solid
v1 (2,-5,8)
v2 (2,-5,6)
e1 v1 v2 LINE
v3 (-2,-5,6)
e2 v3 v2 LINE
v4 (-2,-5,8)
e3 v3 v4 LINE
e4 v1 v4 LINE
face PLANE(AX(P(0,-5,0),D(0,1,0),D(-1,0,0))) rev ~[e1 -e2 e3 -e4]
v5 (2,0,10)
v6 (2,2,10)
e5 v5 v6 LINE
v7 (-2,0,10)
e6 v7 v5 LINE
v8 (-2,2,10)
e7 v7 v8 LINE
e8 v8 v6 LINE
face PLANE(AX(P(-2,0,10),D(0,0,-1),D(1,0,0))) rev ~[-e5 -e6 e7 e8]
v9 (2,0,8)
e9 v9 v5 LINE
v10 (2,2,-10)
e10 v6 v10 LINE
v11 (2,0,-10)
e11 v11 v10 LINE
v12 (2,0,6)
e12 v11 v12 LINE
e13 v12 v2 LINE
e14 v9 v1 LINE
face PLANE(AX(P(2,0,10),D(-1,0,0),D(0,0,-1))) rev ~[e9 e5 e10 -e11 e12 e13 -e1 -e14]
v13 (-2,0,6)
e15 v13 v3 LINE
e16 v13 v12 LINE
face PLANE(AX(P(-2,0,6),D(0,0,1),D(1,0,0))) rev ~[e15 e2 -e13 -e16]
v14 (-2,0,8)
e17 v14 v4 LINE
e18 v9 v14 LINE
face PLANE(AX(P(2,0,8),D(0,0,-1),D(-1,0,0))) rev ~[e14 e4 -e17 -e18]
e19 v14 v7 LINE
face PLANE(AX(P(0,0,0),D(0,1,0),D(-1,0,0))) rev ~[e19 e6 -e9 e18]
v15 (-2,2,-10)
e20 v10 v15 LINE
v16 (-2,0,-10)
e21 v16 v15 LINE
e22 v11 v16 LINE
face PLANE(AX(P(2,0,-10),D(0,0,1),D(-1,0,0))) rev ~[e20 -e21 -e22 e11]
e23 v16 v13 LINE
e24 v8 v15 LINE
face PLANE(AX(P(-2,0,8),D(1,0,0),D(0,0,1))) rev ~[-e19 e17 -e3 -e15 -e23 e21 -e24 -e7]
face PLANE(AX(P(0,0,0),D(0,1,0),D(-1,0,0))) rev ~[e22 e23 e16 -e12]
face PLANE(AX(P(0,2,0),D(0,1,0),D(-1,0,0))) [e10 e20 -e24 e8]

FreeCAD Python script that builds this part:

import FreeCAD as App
import Part
import Sketcher
from FreeCAD import Vector
Q = App.Units.Quantity


def add_polygon(sketch, points):
    """Adds a closed chain of lines whose ends are joined by coincident constraints."""
    first, n = sketch.GeometryCount, len(points)
    for a, b in zip(points, points[1:] + points[:1]):
        sketch.addGeometry(Part.LineSegment(App.Vector(*a, 0), App.Vector(*b, 0)), False)
    for i in range(n):
        sketch.addConstraint(Sketcher.Constraint("Coincident", first + i, 2, first + (i + 1) % n, 1))

doc = App.newDocument("Part")
body = doc.addObject("PartDesign::Body", "Body")

# Sketch on XZ plane
sketch1 = body.newObject("Sketcher::SketchObject", "Sketch")
sketch1.AttachmentSupport = (doc.getObject("XZ_Plane"), [""])
sketch1.MapMode = "FlatFace"
add_polygon(sketch1, [(-2, 10), (2, 10), (2, -10), (-2, -10)])  # lines 0-3
sketch1.addConstraint(Sketcher.Constraint("Horizontal", 0))
sketch1.addConstraint(Sketcher.Constraint("Vertical", 1))
sketch1.addConstraint(Sketcher.Constraint("Horizontal", 2))
sketch1.addConstraint(Sketcher.Constraint("Vertical", 3))
sketch1.addConstraint(Sketcher.Constraint("Symmetric", 0, 2, 2, 2, -1, 1))
sketch1.addConstraint(Sketcher.Constraint("DistanceX", 0, 1, 0, 2, Q("4 mm")))
sketch1.addConstraint(Sketcher.Constraint("DistanceY", 1, 2, 1, 1, Q("20 mm")))
pad1 = body.newObject("PartDesign::Pad", "Pad")
pad1.Profile = sketch1
pad1.Length = 2
pad1.Reversed = True

# Sketch on XZ plane
sketch2 = body.newObject("Sketcher::SketchObject", "Sketch001")
sketch2.AttachmentSupport = (doc.getObject("XZ_Plane"), [""])
sketch2.MapMode = "FlatFace"
add_polygon(sketch2, [(-2, 6), (-2, 8), (2, 8), (2, 6)])  # lines 0-3
sketch2.addConstraint(Sketcher.Constraint("Vertical", 0))
sketch2.addConstraint(Sketcher.Constraint("Horizontal", 1))
sketch2.addConstraint(Sketcher.Constraint("Vertical", 2))
sketch2.addConstraint(Sketcher.Constraint("Horizontal", 3))
sketch2.addConstraint(Sketcher.Constraint("DistanceX", 1, 1, 1, 2, Q("4 mm")))
sketch2.addConstraint(Sketcher.Constraint("DistanceY", 0, 1, 0, 2, Q("2 mm")))
sketch2.addConstraint(Sketcher.Constraint("DistanceX", 0, 2, -1, 1, Q("2 mm")))
sketch2.addConstraint(Sketcher.Constraint("DistanceY", -1, 1, 0, 2, Q("8 mm")))
pad2 = body.newObject("PartDesign::Pad", "Pad001")
pad2.Profile = sketch2
pad2.Length = 5

doc.recompute()
